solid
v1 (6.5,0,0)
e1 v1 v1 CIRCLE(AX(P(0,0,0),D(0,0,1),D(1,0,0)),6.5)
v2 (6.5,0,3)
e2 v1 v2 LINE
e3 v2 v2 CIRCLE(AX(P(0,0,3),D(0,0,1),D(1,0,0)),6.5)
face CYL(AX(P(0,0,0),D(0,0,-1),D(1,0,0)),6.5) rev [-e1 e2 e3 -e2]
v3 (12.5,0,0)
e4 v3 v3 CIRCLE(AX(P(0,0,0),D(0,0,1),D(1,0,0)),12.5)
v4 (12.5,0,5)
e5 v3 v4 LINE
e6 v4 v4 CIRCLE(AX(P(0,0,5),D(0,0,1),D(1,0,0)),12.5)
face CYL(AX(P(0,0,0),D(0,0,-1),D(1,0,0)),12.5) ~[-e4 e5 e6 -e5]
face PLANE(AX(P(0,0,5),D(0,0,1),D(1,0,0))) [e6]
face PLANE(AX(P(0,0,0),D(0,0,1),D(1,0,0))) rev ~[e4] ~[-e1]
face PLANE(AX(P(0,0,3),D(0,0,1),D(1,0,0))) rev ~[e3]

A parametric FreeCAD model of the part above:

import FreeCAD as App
import Part
import Sketcher

doc = App.newDocument("Part")
params = doc.addObject("Spreadsheet::Sheet", "Params")
for row, (alias, value) in enumerate([
    ("sketch1_diameter", "25 mm"),
    ("pad1_length", "5 mm"),
    ("sketch2_diameter", "13 mm"),
    ("pad2_length", "2.54 mm"),
    ("sketch3_diameter", "13 mm"),
    ("pad3_length", "3 mm"),
    ("sketch4_diameter", "13 mm"),
    ("pocket1_length", "3 mm"),
], start=1):
    params.set(f"A{row}", alias)
    params.set(f"B{row}", "=" + value)
    params.setAlias(f"B{row}", alias)

body = doc.addObject("PartDesign::Body", "Body")

# Sketch on XY plane
sketch1 = body.newObject("Sketcher::SketchObject", "Sketch")
sketch1.AttachmentSupport = (doc.getObject("XY_Plane"), [""])
sketch1.MapMode = "FlatFace"
sketch1.addGeometry(Part.Circle(App.Vector(0, 0, 0), App.Vector(0, 0, 1), 12), False)
sketch1.addConstraint(Sketcher.Constraint("Coincident", 0, 3, -1, 1))
sketch1.addConstraint(Sketcher.Constraint("Diameter", 0, 25.0))
sketch1.setExpression("Constraints[1]", "Params.sketch1_diameter")
pad1 = body.newObject("PartDesign::Pad", "Pad")
pad1.Profile = sketch1
pad1.setExpression("Length", "Params.pad1_length")

# Sketch on XY plane
sketch2 = body.newObject("Sketcher::SketchObject", "Sketch001")
sketch2.AttachmentSupport = (doc.getObject("XY_Plane"), [""])
sketch2.MapMode = "FlatFace"
sketch2.addGeometry(Part.Circle(App.Vector(0, 0, 0), App.Vector(0, 0, 1), 6), False)
sketch2.addConstraint(Sketcher.Constraint("Coincident", 0, 3, -1, 1))
sketch2.addConstraint(Sketcher.Constraint("Diameter", 0, 13.0))
sketch2.setExpression("Constraints[1]", "Params.sketch2_diameter")
pad2 = body.newObject("PartDesign::Pad", "Pad001")
pad2.Profile = sketch2
pad2.setExpression("Length", "Params.pad2_length")

# Sketch on XY plane
sketch3 = body.newObject("Sketcher::SketchObject", "Sketch002")
sketch3.AttachmentSupport = (doc.getObject("XY_Plane"), [""])
sketch3.MapMode = "FlatFace"
sketch3.addGeometry(Part.Circle(App.Vector(0, 0, 0), App.Vector(0, 0, 1), 6), False)
sketch3.addConstraint(Sketcher.Constraint("Coincident", 0, 3, -1, 1))
sketch3.addConstraint(Sketcher.Constraint("Diameter", 0, 13.0))
sketch3.setExpression("Constraints[1]", "Params.sketch3_diameter")
pad3 = body.newObject("PartDesign::Pad", "Pad002")
pad3.Profile = sketch3
pad3.setExpression("Length", "Params.pad3_length")

# Sketch on XY plane
sketch4 = body.newObject("Sketcher::SketchObject", "Sketch003")
sketch4.AttachmentSupport = (doc.getObject("XY_Plane"), [""])
sketch4.MapMode = "FlatFace"
sketch4.addGeometry(Part.Circle(App.Vector(0, 0, 0), App.Vector(0, 0, 1), 6), False)
sketch4.addConstraint(Sketcher.Constraint("Coincident", 0, 3, -1, 1))
sketch4.addConstraint(Sketcher.Constraint("Diameter", 0, 13.0))
sketch4.setExpression("Constraints[1]", "Params.sketch4_diameter")
pocket1 = body.newObject("PartDesign::Pocket", "Pocket")
pocket1.Profile = sketch4
pocket1.setExpression("Length", "Params.pocket1_length")
pocket1.Reversed = True

doc.recompute()
